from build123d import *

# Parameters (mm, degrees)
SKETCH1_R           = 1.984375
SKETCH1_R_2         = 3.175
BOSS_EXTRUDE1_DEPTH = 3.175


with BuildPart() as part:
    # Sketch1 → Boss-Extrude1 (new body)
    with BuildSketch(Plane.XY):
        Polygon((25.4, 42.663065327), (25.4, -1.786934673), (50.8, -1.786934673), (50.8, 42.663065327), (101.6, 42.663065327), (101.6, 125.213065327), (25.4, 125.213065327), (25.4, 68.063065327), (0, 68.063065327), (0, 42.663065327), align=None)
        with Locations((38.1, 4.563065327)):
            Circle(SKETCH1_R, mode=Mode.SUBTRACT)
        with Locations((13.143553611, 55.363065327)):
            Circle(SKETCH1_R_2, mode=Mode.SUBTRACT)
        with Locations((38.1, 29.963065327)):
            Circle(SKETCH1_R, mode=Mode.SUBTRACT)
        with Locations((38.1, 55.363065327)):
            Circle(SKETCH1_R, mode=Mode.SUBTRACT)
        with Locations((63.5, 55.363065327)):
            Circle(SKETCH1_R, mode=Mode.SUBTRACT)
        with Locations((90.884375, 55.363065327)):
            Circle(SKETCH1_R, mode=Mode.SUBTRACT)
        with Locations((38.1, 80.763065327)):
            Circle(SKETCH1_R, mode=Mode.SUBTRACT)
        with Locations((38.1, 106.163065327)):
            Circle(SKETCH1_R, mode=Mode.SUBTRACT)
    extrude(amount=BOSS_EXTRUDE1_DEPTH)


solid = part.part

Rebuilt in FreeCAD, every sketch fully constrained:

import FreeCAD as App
import Part
import Sketcher

V = App.Vector
Q = App.Units.Quantity

doc = App.newDocument("Part")
body = doc.addObject("PartDesign::Body", "Body")

# Sketch on XY plane
sketch1 = doc.addObject("Sketcher::SketchObject", "Sketch")
body.addObject(sketch1)
sketch1.AttachmentSupport = (doc.XY_Plane, [""])
sketch1.MapMode = "FlatFace"
sketch1.addGeometry([
    Part.LineSegment(V(25.4, 42.7, 0), V(25.4, -1.8, 0)),  # 0
    Part.LineSegment(V(25.4, -1.8, 0), V(50.8, -1.8, 0)),  # 1
    Part.LineSegment(V(50.8, -1.8, 0), V(50.8, 42.7, 0)),  # 2
    Part.LineSegment(V(50.8, 42.7, 0), V(101.6, 42.7, 0)),  # 3
    Part.LineSegment(V(101.6, 42.7, 0), V(101.6, 125.2, 0)),  # 4
    Part.LineSegment(V(101.6, 125.2, 0), V(25.4, 125.2, 0)),  # 5
    Part.LineSegment(V(25.4, 125.2, 0), V(25.4, 68.1, 0)),  # 6
    Part.LineSegment(V(25.4, 68.1, 0), V(0, 68.1, 0)),  # 7
    Part.LineSegment(V(0, 68.1, 0), V(0, 42.7, 0)),  # 8
    Part.LineSegment(V(0, 42.7, 0), V(25.4, 42.7, 0)),  # 9
    Part.Circle(V(38.1, 4.6, 0), V(0, 0, 1), 2),  # 10
    Part.Circle(V(38.1, 30, 0), V(0, 0, 1), 2),  # 11
    Part.Circle(V(13.1, 55.4, 0), V(0, 0, 1), 3.2),  # 12
    Part.Circle(V(38.1, 55.4, 0), V(0, 0, 1), 2),  # 13
    Part.Circle(V(38.1, 80.8, 0), V(0, 0, 1), 2),  # 14
    Part.Circle(V(38.1, 106.2, 0), V(0, 0, 1), 2),  # 15
    Part.Circle(V(63.5, 55.4, 0), V(0, 0, 1), 2),  # 16
    Part.Circle(V(90.9, 55.4, 0), V(0, 0, 1), 2),  # 17
], False)
sketch1.addConstraint([
    Sketcher.Constraint("Coincident", 0, 2, 1, 1),
    Sketcher.Constraint("Coincident", 1, 2, 2, 1),
    Sketcher.Constraint("Coincident", 2, 2, 3, 1),
    Sketcher.Constraint("Coincident", 3, 2, 4, 1),
    Sketcher.Constraint("Coincident", 4, 2, 5, 1),
    Sketcher.Constraint("Coincident", 5, 2, 6, 1),
    Sketcher.Constraint("Coincident", 6, 2, 7, 1),
    Sketcher.Constraint("Coincident", 7, 2, 8, 1),
    Sketcher.Constraint("Coincident", 8, 2, 9, 1),
    Sketcher.Constraint("Coincident", 9, 2, 0, 1),
    Sketcher.Constraint("Vertical", 0),
    Sketcher.Constraint("Horizontal", 1),
    Sketcher.Constraint("Vertical", 2),
    Sketcher.Constraint("Horizontal", 3),
    Sketcher.Constraint("Vertical", 4),
    Sketcher.Constraint("Horizontal", 5),
    Sketcher.Constraint("Vertical", 6),
    Sketcher.Constraint("Horizontal", 7),
    Sketcher.Constraint("Vertical", 8),
    Sketcher.Constraint("Horizontal", 9),
    Sketcher.Constraint("Equal", 10, 11),
    Sketcher.Constraint("Equal", 11, 13),
    Sketcher.Constraint("Equal", 13, 14),
    Sketcher.Constraint("Equal", 14, 15),
    Sketcher.Constraint("Equal", 15, 16),
    Sketcher.Constraint("Equal", 16, 17),
    Sketcher.Constraint("PointOnObject", 7, 2, -2),
    Sketcher.Constraint("Horizontal", 12, 3, 13, 3),
    Sketcher.Constraint("Horizontal", 13, 3, 16, 3),
    Sketcher.Constraint("Horizontal", 16, 3, 17, 3),
    Sketcher.Constraint("Horizontal", 3, 2, 8, 2),
    Sketcher.Constraint("Vertical", 10, 3, 11, 3),
    Sketcher.Constraint("Vertical", 11, 3, 13, 3),
    Sketcher.Constraint("Vertical", 13, 3, 14, 3),
    Sketcher.Constraint("Vertical", 14, 3, 15, 3),
    Sketcher.Constraint("Vertical", 0, 2, 5, 2),
    Sketcher.Constraint("Equal", 1, 7),
    Sketcher.Constraint("Equal", 9, 8),
    Sketcher.Constraint("Diameter", 12, Q("0.25 in")),
    Sketcher.Constraint("DistanceX", 1, 1, 1, 2, Q("1 in")),
    Sketcher.Constraint("DistanceX", 3, 1, 3, 2, Q("2 in")),
    Sketcher.Constraint("Diameter", 10, Q("0.15625 in")),
    Sketcher.Constraint("DistanceY", 10, 3, 11, 3, Q("1 in")),
    Sketcher.Constraint("DistanceY", 11, 3, 12, 3, Q("1 in")),
    Sketcher.Constraint("DistanceY", 13, 3, 14, 3, Q("1 in")),
    Sketcher.Constraint("DistanceY", 14, 3, 15, 3, Q("1 in")),
    Sketcher.Constraint("DistanceX", 13, 3, 16, 3, Q("1 in")),
    Sketcher.Constraint("DistanceY", 0, 2, 0, 1, Q("1.75 in")),
    Sketcher.Constraint("DistanceY", 4, 1, 4, 2, Q("3.25 in")),
    Sketcher.Constraint("DistanceX", -1, 1, 10, 3, Q("1.5 in")),
    Sketcher.Constraint("DistanceY", 11, 3, 2, 2, Q("0.5 in")),
    Sketcher.Constraint("DistanceX", -1, 1, 17, 3, Q("3.578125 in")),
    Sketcher.Constraint("DistanceY", -1, 1, 10, 3, 4.563065),
    Sketcher.Constraint("DistanceX", -1, 1, 12, 3, 13.143554),
])
pad1 = doc.addObject("PartDesign::Pad", "Pad")
body.addObject(pad1)
pad1.Profile = sketch1
pad1.Length = Q("0.125 in")

doc.recompute()
